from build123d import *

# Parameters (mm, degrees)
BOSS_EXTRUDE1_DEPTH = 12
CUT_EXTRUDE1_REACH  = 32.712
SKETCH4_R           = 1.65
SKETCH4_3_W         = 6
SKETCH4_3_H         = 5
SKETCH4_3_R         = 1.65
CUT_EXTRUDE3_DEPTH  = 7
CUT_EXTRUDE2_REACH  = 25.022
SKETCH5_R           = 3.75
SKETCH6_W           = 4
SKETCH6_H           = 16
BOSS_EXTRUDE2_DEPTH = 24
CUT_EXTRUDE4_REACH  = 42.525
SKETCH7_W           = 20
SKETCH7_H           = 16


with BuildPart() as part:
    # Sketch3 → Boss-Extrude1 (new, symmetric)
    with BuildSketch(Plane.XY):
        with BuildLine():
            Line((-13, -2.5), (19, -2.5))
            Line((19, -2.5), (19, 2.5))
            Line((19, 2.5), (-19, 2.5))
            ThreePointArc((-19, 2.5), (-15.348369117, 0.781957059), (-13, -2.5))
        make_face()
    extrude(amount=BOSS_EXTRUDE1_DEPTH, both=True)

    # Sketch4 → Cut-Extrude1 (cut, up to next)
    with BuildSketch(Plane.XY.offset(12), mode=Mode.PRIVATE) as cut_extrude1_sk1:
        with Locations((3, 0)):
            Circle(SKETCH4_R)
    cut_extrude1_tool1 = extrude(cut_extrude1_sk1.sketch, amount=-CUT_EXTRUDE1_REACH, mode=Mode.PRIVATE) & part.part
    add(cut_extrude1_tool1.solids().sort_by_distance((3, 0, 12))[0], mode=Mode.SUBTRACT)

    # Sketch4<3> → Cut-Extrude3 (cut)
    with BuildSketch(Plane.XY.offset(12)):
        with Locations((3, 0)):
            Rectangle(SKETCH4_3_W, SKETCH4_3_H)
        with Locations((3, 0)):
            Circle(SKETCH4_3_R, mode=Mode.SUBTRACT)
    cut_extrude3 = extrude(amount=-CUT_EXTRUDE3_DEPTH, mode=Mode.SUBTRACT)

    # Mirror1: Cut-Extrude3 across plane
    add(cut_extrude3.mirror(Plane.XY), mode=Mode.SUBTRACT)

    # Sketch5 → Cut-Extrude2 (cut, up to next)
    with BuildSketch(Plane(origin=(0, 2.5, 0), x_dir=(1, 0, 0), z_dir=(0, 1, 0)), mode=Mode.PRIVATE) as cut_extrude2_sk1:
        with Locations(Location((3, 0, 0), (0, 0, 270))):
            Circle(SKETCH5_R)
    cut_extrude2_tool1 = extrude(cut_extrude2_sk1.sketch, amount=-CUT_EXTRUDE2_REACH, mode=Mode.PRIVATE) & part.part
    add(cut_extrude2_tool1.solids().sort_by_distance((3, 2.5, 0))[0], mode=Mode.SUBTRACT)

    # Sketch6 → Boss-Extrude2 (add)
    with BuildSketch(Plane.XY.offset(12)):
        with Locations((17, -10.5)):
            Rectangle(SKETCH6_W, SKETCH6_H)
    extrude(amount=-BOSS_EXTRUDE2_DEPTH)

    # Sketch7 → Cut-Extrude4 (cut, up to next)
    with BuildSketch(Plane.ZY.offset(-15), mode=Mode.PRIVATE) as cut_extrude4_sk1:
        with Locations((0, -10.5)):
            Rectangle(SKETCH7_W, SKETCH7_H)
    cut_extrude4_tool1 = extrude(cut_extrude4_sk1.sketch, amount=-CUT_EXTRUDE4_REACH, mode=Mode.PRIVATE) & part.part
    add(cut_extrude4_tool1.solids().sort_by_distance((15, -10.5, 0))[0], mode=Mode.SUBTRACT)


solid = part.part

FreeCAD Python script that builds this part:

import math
import FreeCAD as App
import Part
import Sketcher
from FreeCAD import Vector


def add_polygon(sketch, points):
    """Adds a closed chain of lines whose ends are joined by coincident constraints."""
    first, n = sketch.GeometryCount, len(points)
    for a, b in zip(points, points[1:] + points[:1]):
        sketch.addGeometry(Part.LineSegment(App.Vector(*a, 0), App.Vector(*b, 0)), False)
    for i in range(n):
        sketch.addConstraint(Sketcher.Constraint("Coincident", first + i, 2, first + (i + 1) % n, 1))

doc = App.newDocument("Part")
body = doc.addObject("PartDesign::Body", "Body")

sketch1 = body.newObject("Sketcher::SketchObject", "Sketch")
sketch1.AttachmentSupport = (doc.getObject("XY_Plane"), [""])
sketch1.MapMode = "FlatFace"
sketch1.addGeometry(Part.LineSegment(Vector(-13, -2, 0), Vector(19, -2, 0)), False)
sketch1.addGeometry(Part.LineSegment(Vector(19, -2, 0), Vector(19, 2, 0)), False)
sketch1.addGeometry(Part.LineSegment(Vector(19, 2, 0), Vector(-19, 2, 0)), False)
sketch1.addGeometry(Part.ArcOfCircle(Part.Circle(Vector(-20, -5, 0), Vector(0, 0, 1), 8), math.radians(21), math.radians(79)), False)
sketch1.addConstraint(Sketcher.Constraint("Coincident", 0, 2, 1, 1))
sketch1.addConstraint(Sketcher.Constraint("Coincident", 1, 2, 2, 1))
sketch1.addConstraint(Sketcher.Constraint("Coincident", 2, 2, 3, 2))
sketch1.addConstraint(Sketcher.Constraint("Coincident", 3, 1, 0, 1))
sketch1.addConstraint(Sketcher.Constraint("Horizontal", 0))
sketch1.addConstraint(Sketcher.Constraint("Vertical", 1))
sketch1.addConstraint(Sketcher.Constraint("Horizontal", 2))
sketch1.addConstraint(Sketcher.Constraint("Symmetric", 0, 2, 2, 2, -1, 1))
sketch1.addConstraint(Sketcher.Constraint("Radius", 3, 8.0))
sketch1.addConstraint(Sketcher.Constraint("DistanceX", 0, 1, 0, 2, 32.0))
sketch1.addConstraint(Sketcher.Constraint("DistanceX", 2, 2, 2, 1, 38.0))
sketch1.addConstraint(Sketcher.Constraint("DistanceY", 1, 1, 1, 2, 5.0))
pad1 = body.newObject("PartDesign::Pad", "Pad")
pad1.Profile = sketch1
pad1.Length = 24
pad1.Midplane = True

sketch2 = body.newObject("Sketcher::SketchObject", "Sketch001")
sketch2.AttachmentSupport = (doc.getObject("XY_Plane"), [""])
sketch2.MapMode = "FlatFace"
sketch2.AttachmentOffset = App.Placement(Vector(0, 0, 12), App.Rotation())
sketch2.addGeometry(Part.Circle(Vector(3, 0, 0), Vector(0, 0, 1), 1.6), False)
sketch2.addConstraint(Sketcher.Constraint("PointOnObject", 0, 3, -1))
sketch2.addConstraint(Sketcher.Constraint("Diameter", 0, 3.3))
sketch2.addConstraint(Sketcher.Constraint("DistanceX", -1, 1, 0, 3, 3.0))
pocket1 = body.newObject("PartDesign::Pocket", "Pocket")
pocket1.Profile = sketch2
pocket1.Type = "UpToFirst"

sketch3 = body.newObject("Sketcher::SketchObject", "Sketch002")
sketch3.AttachmentSupport = (doc.getObject("XY_Plane"), [""])
sketch3.MapMode = "FlatFace"
sketch3.AttachmentOffset = App.Placement(Vector(0, 0, 12), App.Rotation())
add_polygon(sketch3, [(0, 2.5), (0, -2.5), (6, -2.5), (6, 2.5)])
sketch3.addGeometry(Part.Circle(Vector(3, 0, 0), Vector(0, 0, 1), 1.6), False)
sketch3.addConstraint(Sketcher.Constraint("Vertical", 0))
sketch3.addConstraint(Sketcher.Constraint("Horizontal", 1))
sketch3.addConstraint(Sketcher.Constraint("Vertical", 2))
sketch3.addConstraint(Sketcher.Constraint("Horizontal", 3))
sketch3.addConstraint(Sketcher.Constraint("Symmetric", 0, 2, 3, 2, -1, 1))
sketch3.addConstraint(Sketcher.Constraint("PointOnObject", 4, 3, -1))
sketch3.addConstraint(Sketcher.Constraint("Diameter", 4, 3.3))
sketch3.addConstraint(Sketcher.Constraint("DistanceX", 1, 1, 1, 2, 6.0))
sketch3.addConstraint(Sketcher.Constraint("DistanceY", 0, 2, 0, 1, 5.0))
sketch3.addConstraint(Sketcher.Constraint("DistanceX", -1, 1, 4, 3, 3.0))
pocket2 = body.newObject("PartDesign::Pocket", "Pocket001")
pocket2.Profile = sketch3
pocket2.Length = 7
doc.recompute()

mirrored = body.newObject("PartDesign::Mirrored", "Mirrored")
mirrored.Originals = [pocket2]
mirrored.MirrorPlane = (doc.getObject("XY_Plane"), [""])
body.Tip = mirrored

sketch4 = body.newObject("Sketcher::SketchObject", "Sketch003")
sketch4.AttachmentSupport = (doc.getObject("XZ_Plane"), [""])
sketch4.MapMode = "FlatFace"
sketch4.AttachmentOffset = App.Placement(Vector(0, 0, -2.5), App.Rotation())
sketch4.addGeometry(Part.Circle(Vector(3, 0, 0), Vector(0, 0, 1), 3.8), False)
sketch4.addConstraint(Sketcher.Constraint("PointOnObject", 0, 3, -1))
sketch4.addConstraint(Sketcher.Constraint("Diameter", 0, 7.5))
sketch4.addConstraint(Sketcher.Constraint("DistanceX", -1, 1, 0, 3, 3.0))
pocket3 = body.newObject("PartDesign::Pocket", "Pocket002")
pocket3.Profile = sketch4
pocket3.Length = 5
pocket3.Reversed = True

sketch5 = body.newObject("Sketcher::SketchObject", "Sketch004")
sketch5.AttachmentSupport = (doc.getObject("XY_Plane"), [""])
sketch5.MapMode = "FlatFace"
sketch5.AttachmentOffset = App.Placement(Vector(0, 0, 12), App.Rotation())
add_polygon(sketch5, [(15, -2.5), (15, -18.5), (19, -18.5), (19, -2.5)])
sketch5.addConstraint(Sketcher.Constraint("Vertical", 0))
sketch5.addConstraint(Sketcher.Constraint("Horizontal", 1))
sketch5.addConstraint(Sketcher.Constraint("Vertical", 2))
sketch5.addConstraint(Sketcher.Constraint("Horizontal", 3))
sketch5.addConstraint(Sketcher.Constraint("DistanceX", 1, 1, 1, 2, 4.0))
sketch5.addConstraint(Sketcher.Constraint("DistanceY", 0, 2, 0, 1, 16.0))
sketch5.addConstraint(Sketcher.Constraint("DistanceX", -1, 1, 0, 2, 15.0))
sketch5.addConstraint(Sketcher.Constraint("DistanceY", 0, 2, -1, 1, 18.5))
pad2 = body.newObject("PartDesign::Pad", "Pad001")
pad2.Profile = sketch5
pad2.Length = 24
pad2.Reversed = True

sketch6 = body.newObject("Sketcher::SketchObject", "Sketch005")
sketch6.AttachmentSupport = (doc.getObject("YZ_Plane"), [""])
sketch6.MapMode = "FlatFace"
sketch6.AttachmentOffset = App.Placement(Vector(0, 0, 15), App.Rotation())
add_polygon(sketch6, [(-2, -10), (-18, -10), (-18, 10), (-2, 10)])
sketch6.addConstraint(Sketcher.Constraint("Horizontal", 0))
sketch6.addConstraint(Sketcher.Constraint("Vertical", 1))
sketch6.addConstraint(Sketcher.Constraint("Horizontal", 2))
sketch6.addConstraint(Sketcher.Constraint("Vertical", 3))
sketch6.addConstraint(Sketcher.Constraint("DistanceX", 0, 2, 0, 1, 16.0))
sketch6.addConstraint(Sketcher.Constraint("DistanceY", 1, 1, 1, 2, 20.0))
sketch6.addConstraint(Sketcher.Constraint("DistanceY", 0, 2, -1, 1, 10.0))
sketch6.addConstraint(Sketcher.Constraint("DistanceX", 0, 2, -1, 1, 18.5))
pocket4 = body.newObject("PartDesign::Pocket", "Pocket003")
pocket4.Profile = sketch6
pocket4.Type = "UpToFirst"
pocket4.Reversed = True

doc.recompute()
